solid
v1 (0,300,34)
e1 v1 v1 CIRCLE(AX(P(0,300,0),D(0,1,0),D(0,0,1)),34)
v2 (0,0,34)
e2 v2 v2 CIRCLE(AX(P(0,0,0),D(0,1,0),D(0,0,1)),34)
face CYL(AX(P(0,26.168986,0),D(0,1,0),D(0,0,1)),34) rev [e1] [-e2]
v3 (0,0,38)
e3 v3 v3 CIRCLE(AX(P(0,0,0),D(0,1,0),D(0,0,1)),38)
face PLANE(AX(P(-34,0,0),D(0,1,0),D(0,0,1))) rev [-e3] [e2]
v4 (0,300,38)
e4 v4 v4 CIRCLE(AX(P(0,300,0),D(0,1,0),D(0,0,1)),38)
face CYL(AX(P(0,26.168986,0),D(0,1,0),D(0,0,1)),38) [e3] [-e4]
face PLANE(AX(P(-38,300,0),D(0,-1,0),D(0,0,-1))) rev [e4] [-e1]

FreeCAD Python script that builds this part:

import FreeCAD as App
import Part
import Sketcher

doc = App.newDocument("Part")
body = doc.addObject("PartDesign::Body", "Body")

sketch1 = doc.addObject("Sketcher::SketchObject", "Sketch")
body.addObject(sketch1)
sketch1.AttachmentSupport = (doc.XY_Plane, [""])
sketch1.MapMode = "FlatFace"
sketch1.addGeometry(Part.LineSegment(App.Vector(-38, 300, 0), App.Vector(-38, 0, 0)), False)
sketch1.addGeometry(Part.LineSegment(App.Vector(-38, 0, 0), App.Vector(-34, 0, 0)), False)
sketch1.addGeometry(Part.LineSegment(App.Vector(-34, 0, 0), App.Vector(-34, 300, 0)), False)
sketch1.addGeometry(Part.LineSegment(App.Vector(-34, 300, 0), App.Vector(-38, 300, 0)), False)
sketch1.addConstraint(Sketcher.Constraint("Coincident", 0, 2, 1, 1))
sketch1.addConstraint(Sketcher.Constraint("Coincident", 1, 2, 2, 1))
sketch1.addConstraint(Sketcher.Constraint("Coincident", 2, 2, 3, 1))
sketch1.addConstraint(Sketcher.Constraint("Coincident", 3, 2, 0, 1))
sketch1.addConstraint(Sketcher.Constraint("Vertical", 0))
sketch1.addConstraint(Sketcher.Constraint("Horizontal", 1))
sketch1.addConstraint(Sketcher.Constraint("Vertical", 2))
sketch1.addConstraint(Sketcher.Constraint("Horizontal", 3))
sketch1.addConstraint(Sketcher.Constraint("PointOnObject", 0, 2, -1))
sketch1.addConstraint(Sketcher.Constraint("DistanceX", 1, 1, 1, 2, 4.0))
sketch1.addConstraint(Sketcher.Constraint("DistanceY", 0, 2, 0, 1, 300.0))
sketch1.addConstraint(Sketcher.Constraint("DistanceX", 0, 2, -1, 1, 38.0))
revolution = doc.addObject("PartDesign::Revolution", "Revolution")
body.addObject(revolution)
revolution.Profile = sketch1
revolution.ReferenceAxis = (sketch1, ["V_Axis"])
revolution.Angle = 360

doc.recompute()
